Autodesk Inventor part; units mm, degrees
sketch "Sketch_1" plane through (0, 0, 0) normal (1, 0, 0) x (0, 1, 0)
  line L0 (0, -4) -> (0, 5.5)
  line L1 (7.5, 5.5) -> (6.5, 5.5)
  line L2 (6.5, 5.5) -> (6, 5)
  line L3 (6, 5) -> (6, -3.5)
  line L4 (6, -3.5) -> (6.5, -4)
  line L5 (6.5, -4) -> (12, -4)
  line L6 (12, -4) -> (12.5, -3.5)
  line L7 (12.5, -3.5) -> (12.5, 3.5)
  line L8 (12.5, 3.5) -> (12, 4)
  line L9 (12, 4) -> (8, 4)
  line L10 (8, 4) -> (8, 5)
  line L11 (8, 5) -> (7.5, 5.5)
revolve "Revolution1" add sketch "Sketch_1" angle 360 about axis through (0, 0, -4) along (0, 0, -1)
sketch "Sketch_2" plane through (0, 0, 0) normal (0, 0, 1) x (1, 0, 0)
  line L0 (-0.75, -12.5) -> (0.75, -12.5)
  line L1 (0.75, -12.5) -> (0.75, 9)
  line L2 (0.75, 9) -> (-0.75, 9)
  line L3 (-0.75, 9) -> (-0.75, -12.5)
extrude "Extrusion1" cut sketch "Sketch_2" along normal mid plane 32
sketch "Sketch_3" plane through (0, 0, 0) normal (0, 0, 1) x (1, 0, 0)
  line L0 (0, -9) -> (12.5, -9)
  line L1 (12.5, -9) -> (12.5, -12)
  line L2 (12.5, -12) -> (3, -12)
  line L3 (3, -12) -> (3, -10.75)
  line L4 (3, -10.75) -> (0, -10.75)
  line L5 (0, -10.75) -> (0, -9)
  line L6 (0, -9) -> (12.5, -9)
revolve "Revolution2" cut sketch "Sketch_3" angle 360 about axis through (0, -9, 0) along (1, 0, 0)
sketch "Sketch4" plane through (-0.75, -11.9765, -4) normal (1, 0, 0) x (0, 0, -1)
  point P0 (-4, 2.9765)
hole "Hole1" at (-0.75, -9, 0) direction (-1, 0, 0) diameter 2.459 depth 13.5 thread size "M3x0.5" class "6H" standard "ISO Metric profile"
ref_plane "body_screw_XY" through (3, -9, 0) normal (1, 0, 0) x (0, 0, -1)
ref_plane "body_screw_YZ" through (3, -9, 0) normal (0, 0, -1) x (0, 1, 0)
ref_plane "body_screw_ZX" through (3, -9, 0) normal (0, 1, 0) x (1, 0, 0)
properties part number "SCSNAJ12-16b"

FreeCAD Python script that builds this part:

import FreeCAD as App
import Part
import Sketcher

V = App.Vector

doc = App.newDocument("Part")
body = doc.addObject("PartDesign::Body", "Body")

sketch1 = doc.addObject("Sketcher::SketchObject", "Sketch")
body.addObject(sketch1)
sketch1.AttachmentSupport = (doc.YZ_Plane, [""])
sketch1.MapMode = "FlatFace"
sketch1.addGeometry(Part.LineSegment(V(8, 5, 0), V(7.5, 5.5, 0)), False)
sketch1.addGeometry(Part.LineSegment(V(7.5, 5.5, 0), V(6.5, 5.5, 0)), False)
sketch1.addGeometry(Part.LineSegment(V(6.5, 5.5, 0), V(6, 5, 0)), False)
sketch1.addGeometry(Part.LineSegment(V(6, 5, 0), V(6, -3.5, 0)), False)
sketch1.addGeometry(Part.LineSegment(V(6, -3.5, 0), V(6.5, -4, 0)), False)
sketch1.addGeometry(Part.LineSegment(V(6.5, -4, 0), V(12, -4, 0)), False)
sketch1.addGeometry(Part.LineSegment(V(12, -4, 0), V(12.5, -3.5, 0)), False)
sketch1.addGeometry(Part.LineSegment(V(12.5, -3.5, 0), V(12.5, 3.5, 0)), False)
sketch1.addGeometry(Part.LineSegment(V(12.5, 3.5, 0), V(12, 4, 0)), False)
sketch1.addGeometry(Part.LineSegment(V(12, 4, 0), V(8, 4, 0)), False)
sketch1.addGeometry(Part.LineSegment(V(8, 4, 0), V(8, 5, 0)), False)
sketch1.addConstraint(Sketcher.Constraint("Coincident", 0, 2, 1, 1))
sketch1.addConstraint(Sketcher.Constraint("Coincident", 1, 2, 2, 1))
sketch1.addConstraint(Sketcher.Constraint("Coincident", 2, 2, 3, 1))
sketch1.addConstraint(Sketcher.Constraint("Coincident", 3, 2, 4, 1))
sketch1.addConstraint(Sketcher.Constraint("Coincident", 4, 2, 5, 1))
sketch1.addConstraint(Sketcher.Constraint("Coincident", 5, 2, 6, 1))
sketch1.addConstraint(Sketcher.Constraint("Coincident", 6, 2, 7, 1))
sketch1.addConstraint(Sketcher.Constraint("Coincident", 7, 2, 8, 1))
sketch1.addConstraint(Sketcher.Constraint("Coincident", 8, 2, 9, 1))
sketch1.addConstraint(Sketcher.Constraint("Coincident", 9, 2, 10, 1))
sketch1.addConstraint(Sketcher.Constraint("Coincident", 10, 2, 0, 1))
sketch1.addConstraint(Sketcher.Constraint("Horizontal", 1))
sketch1.addConstraint(Sketcher.Constraint("Vertical", 3))
sketch1.addConstraint(Sketcher.Constraint("Horizontal", 5))
sketch1.addConstraint(Sketcher.Constraint("Vertical", 7))
sketch1.addConstraint(Sketcher.Constraint("Horizontal", 9))
sketch1.addConstraint(Sketcher.Constraint("Vertical", 10))
sketch1.addConstraint(Sketcher.Constraint("Symmetric", 5, 2, 8, 2, -1))
sketch1.addConstraint(Sketcher.Constraint("Perpendicular", 0, 2))
sketch1.addConstraint(Sketcher.Constraint("Perpendicular", 2, 4))
sketch1.addConstraint(Sketcher.Constraint("Perpendicular", 4, 6))
sketch1.addConstraint(Sketcher.Constraint("Perpendicular", 6, 8))
sketch1.addConstraint(Sketcher.Constraint("Horizontal", 3, 2, 6, 2))
sketch1.addConstraint(Sketcher.Constraint("Horizontal", 2, 2, 10, 2))
sketch1.addConstraint(Sketcher.Constraint("Vertical", 1, 2, 4, 2))
sketch1.addConstraint(Sketcher.Constraint("Equal", 1, 10))
sketch1.addConstraint(Sketcher.Constraint("Equal", 0, 2))
sketch1.addConstraint(Sketcher.Constraint("DistanceX", 1, 2, 1, 1, 1.0))
sketch1.addConstraint(Sketcher.Constraint("DistanceX", 9, 2, 9, 1, 4.0))
sketch1.addConstraint(Sketcher.Constraint("DistanceY", 7, 1, 7, 2, 7.0))
sketch1.addConstraint(Sketcher.Constraint("DistanceX", 5, 1, 5, 2, 5.5))
sketch1.addConstraint(Sketcher.Constraint("DistanceX", -1, 1, 2, 2, 6.0))
revolution = doc.addObject("PartDesign::Revolution", "Revolution")
body.addObject(revolution)
revolution.Profile = sketch1
revolution.ReferenceAxis = (sketch1, ["V_Axis"])
revolution.Angle = 360

sketch2 = doc.addObject("Sketcher::SketchObject", "Sketch001")
body.addObject(sketch2)
sketch2.AttachmentSupport = (doc.XY_Plane, [""])
sketch2.MapMode = "FlatFace"
sketch2.addGeometry(Part.LineSegment(V(-0.8, 9, 0), V(-0.8, -12.5, 0)), False)
sketch2.addGeometry(Part.LineSegment(V(-0.8, -12.5, 0), V(0.8, -12.5, 0)), False)
sketch2.addGeometry(Part.LineSegment(V(0.8, -12.5, 0), V(0.8, 9, 0)), False)
sketch2.addGeometry(Part.LineSegment(V(0.8, 9, 0), V(-0.8, 9, 0)), False)
sketch2.addConstraint(Sketcher.Constraint("Coincident", 0, 2, 1, 1))
sketch2.addConstraint(Sketcher.Constraint("Coincident", 1, 2, 2, 1))
sketch2.addConstraint(Sketcher.Constraint("Coincident", 2, 2, 3, 1))
sketch2.addConstraint(Sketcher.Constraint("Coincident", 3, 2, 0, 1))
sketch2.addConstraint(Sketcher.Constraint("Vertical", 0))
sketch2.addConstraint(Sketcher.Constraint("Horizontal", 1))
sketch2.addConstraint(Sketcher.Constraint("Vertical", 2))
sketch2.addConstraint(Sketcher.Constraint("Horizontal", 3))
sketch2.addConstraint(Sketcher.Constraint("DistanceX", 1, 1, 1, 2, 1.5))
sketch2.addConstraint(Sketcher.Constraint("DistanceY", 0, 2, 0, 1, 21.5))
sketch2.addConstraint(Sketcher.Constraint("DistanceY", -1, 1, 2, 2, 9.0))
sketch2.addConstraint(Sketcher.Constraint("DistanceX", 0, 2, -1, 1, 0.75))
pocket1 = doc.addObject("PartDesign::Pocket", "Pocket")
body.addObject(pocket1)
pocket1.Profile = sketch2
pocket1.Length = 32
pocket1.Midplane = True

sketch3 = doc.addObject("Sketcher::SketchObject", "Sketch002")
body.addObject(sketch3)
sketch3.AttachmentSupport = (doc.XY_Plane, [""])
sketch3.MapMode = "FlatFace"
sketch3.addGeometry(Part.LineSegment(V(12.5, -9, 0), V(0, -9, 0)), False)
sketch3.addGeometry(Part.LineSegment(V(0, -9, 0), V(0, -10.8, 0)), False)
sketch3.addGeometry(Part.LineSegment(V(0, -10.8, 0), V(3, -10.8, 0)), False)
sketch3.addGeometry(Part.LineSegment(V(3, -10.8, 0), V(3, -12, 0)), False)
sketch3.addGeometry(Part.LineSegment(V(3, -12, 0), V(12.5, -12, 0)), False)
sketch3.addGeometry(Part.LineSegment(V(12.5, -12, 0), V(12.5, -9, 0)), False)
sketch3.addGeometry(Part.LineSegment(V(0, -9, 0), V(12.5, -9, 0)), True)
sketch3.addConstraint(Sketcher.Constraint("Coincident", 0, 2, 1, 1))
sketch3.addConstraint(Sketcher.Constraint("Coincident", 1, 2, 2, 1))
sketch3.addConstraint(Sketcher.Constraint("Coincident", 2, 2, 3, 1))
sketch3.addConstraint(Sketcher.Constraint("Coincident", 3, 2, 4, 1))
sketch3.addConstraint(Sketcher.Constraint("Coincident", 4, 2, 5, 1))
sketch3.addConstraint(Sketcher.Constraint("Coincident", 5, 2, 0, 1))
sketch3.addConstraint(Sketcher.Constraint("Horizontal", 0))
sketch3.addConstraint(Sketcher.Constraint("Vertical", 1))
sketch3.addConstraint(Sketcher.Constraint("Horizontal", 2))
sketch3.addConstraint(Sketcher.Constraint("Vertical", 3))
sketch3.addConstraint(Sketcher.Constraint("Horizontal", 4))
sketch3.addConstraint(Sketcher.Constraint("Vertical", 5))
sketch3.addConstraint(Sketcher.Constraint("Horizontal", 6))
sketch3.addConstraint(Sketcher.Constraint("Coincident", 6, 1, 0, 2))
sketch3.addConstraint(Sketcher.Constraint("PointOnObject", 0, 2, -2))
sketch3.addConstraint(Sketcher.Constraint("Vertical", 4, 2, 6, 2))
sketch3.addConstraint(Sketcher.Constraint("Equal", 2, 5))
sketch3.addConstraint(Sketcher.Constraint("DistanceX", 2, 1, 2, 2, 3.0))
sketch3.addConstraint(Sketcher.Constraint("DistanceX", 0, 2, 0, 1, 12.5))
sketch3.addConstraint(Sketcher.Constraint("DistanceY", 0, 2, -1, 1, 9.0))
sketch3.addConstraint(Sketcher.Constraint("DistanceY", 1, 2, 1, 1, 1.75))
groove = doc.addObject("PartDesign::Groove", "Groove")
body.addObject(groove)
groove.Profile = sketch3
groove.ReferenceAxis = (sketch3, ["Axis0"])
groove.Angle = 360

sketch4 = doc.addObject("Sketcher::SketchObject", "Sketch003")
body.addObject(sketch4)
sketch4.AttachmentSupport = (doc.YZ_Plane, [""])
sketch4.MapMode = "FlatFace"
sketch4.AttachmentOffset = App.Placement(V(0, 0, -0.75), App.Rotation())
sketch4.addGeometry(Part.Circle(V(-9, 0, 0), V(0, 0, 1), 1.2), False)
sketch4.addConstraint(Sketcher.Constraint("PointOnObject", 0, 3, -1))
sketch4.addConstraint(Sketcher.Constraint("Diameter", 0, 2.459))
sketch4.addConstraint(Sketcher.Constraint("DistanceX", 0, 3, -1, 1, 9.0))
doc.recompute()
hole = doc.addObject("PartDesign::Hole", "Hole")
body.addObject(hole)
hole.Profile = sketch4
hole.ThreadType = "None"
hole.Diameter = 2.459
hole.DepthType = "Dimension"
hole.Depth = 13.5
hole.DrillPoint = "Flat"

doc.recompute()
